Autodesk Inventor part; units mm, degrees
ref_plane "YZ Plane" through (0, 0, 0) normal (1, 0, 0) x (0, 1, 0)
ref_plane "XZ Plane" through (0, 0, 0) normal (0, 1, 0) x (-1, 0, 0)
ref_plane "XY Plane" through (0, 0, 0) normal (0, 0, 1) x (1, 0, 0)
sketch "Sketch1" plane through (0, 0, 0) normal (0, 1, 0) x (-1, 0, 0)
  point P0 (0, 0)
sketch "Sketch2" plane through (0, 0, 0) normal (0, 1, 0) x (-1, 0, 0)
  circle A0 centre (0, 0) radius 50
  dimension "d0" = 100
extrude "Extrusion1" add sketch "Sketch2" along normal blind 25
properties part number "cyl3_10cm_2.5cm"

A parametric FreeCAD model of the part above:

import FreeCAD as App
import Part
import Sketcher
from FreeCAD import Vector
Q = App.Units.Quantity

doc = App.newDocument("Part")
params = doc.addObject("Spreadsheet::Sheet", "Params")
for row, (alias, value) in enumerate([
    ("sketch1_diameter", "100 mm"),
    ("pad1_length", "25 mm"),
], start=1):
    params.set(f"A{row}", alias)
    params.set(f"B{row}", "=" + value)
    params.setAlias(f"B{row}", alias)

body = doc.addObject("PartDesign::Body", "Body")

sketch1 = body.newObject("Sketcher::SketchObject", "Sketch")
sketch1.AttachmentSupport = (doc.getObject("XZ_Plane"), [""])
sketch1.MapMode = "FlatFace"
sketch1.addGeometry(Part.Circle(Vector(0, 0, 0), Vector(0, 0, 1), 50), False)
sketch1.addConstraint([
    Sketcher.Constraint("Coincident", 0, 3, -1, 1),
    Sketcher.Constraint("Diameter", 0, Q("100 mm")),
])
sketch1.setExpression("Constraints[1]", "Params.sketch1_diameter")
pad1 = body.newObject("PartDesign::Pad", "Pad")
pad1.Profile = sketch1
pad1.setExpression("Length", "Params.pad1_length")
pad1.Reversed = True

doc.recompute()
